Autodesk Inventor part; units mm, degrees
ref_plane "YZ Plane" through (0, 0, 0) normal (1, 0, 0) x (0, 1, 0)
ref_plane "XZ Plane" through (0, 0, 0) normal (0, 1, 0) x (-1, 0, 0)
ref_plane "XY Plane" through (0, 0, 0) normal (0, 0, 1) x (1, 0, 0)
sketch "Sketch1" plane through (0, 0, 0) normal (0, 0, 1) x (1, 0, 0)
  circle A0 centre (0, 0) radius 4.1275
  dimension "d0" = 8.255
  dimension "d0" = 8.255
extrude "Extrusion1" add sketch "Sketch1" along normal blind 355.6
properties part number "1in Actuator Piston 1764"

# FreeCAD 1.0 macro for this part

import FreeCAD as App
import Part
import Sketcher

V = App.Vector
Q = App.Units.Quantity

doc = App.newDocument("Part")
body = doc.addObject("PartDesign::Body", "Body")

sketch1 = body.newObject("Sketcher::SketchObject", "Sketch")
sketch1.AttachmentSupport = (doc.getObject("XY_Plane"), [""])
sketch1.MapMode = "FlatFace"
sketch1.addGeometry(Part.Circle(V(0, 0, 0), V(0, 0, 1), 4.1), False)
sketch1.addConstraint([
    Sketcher.Constraint("Coincident", 0, 3, -1, 1),
    Sketcher.Constraint("Diameter", 0, Q("0.325 in")),
])
pad1 = body.newObject("PartDesign::Pad", "Pad")
pad1.Profile = sketch1
pad1.Length = Q("14 in")

doc.recompute()
